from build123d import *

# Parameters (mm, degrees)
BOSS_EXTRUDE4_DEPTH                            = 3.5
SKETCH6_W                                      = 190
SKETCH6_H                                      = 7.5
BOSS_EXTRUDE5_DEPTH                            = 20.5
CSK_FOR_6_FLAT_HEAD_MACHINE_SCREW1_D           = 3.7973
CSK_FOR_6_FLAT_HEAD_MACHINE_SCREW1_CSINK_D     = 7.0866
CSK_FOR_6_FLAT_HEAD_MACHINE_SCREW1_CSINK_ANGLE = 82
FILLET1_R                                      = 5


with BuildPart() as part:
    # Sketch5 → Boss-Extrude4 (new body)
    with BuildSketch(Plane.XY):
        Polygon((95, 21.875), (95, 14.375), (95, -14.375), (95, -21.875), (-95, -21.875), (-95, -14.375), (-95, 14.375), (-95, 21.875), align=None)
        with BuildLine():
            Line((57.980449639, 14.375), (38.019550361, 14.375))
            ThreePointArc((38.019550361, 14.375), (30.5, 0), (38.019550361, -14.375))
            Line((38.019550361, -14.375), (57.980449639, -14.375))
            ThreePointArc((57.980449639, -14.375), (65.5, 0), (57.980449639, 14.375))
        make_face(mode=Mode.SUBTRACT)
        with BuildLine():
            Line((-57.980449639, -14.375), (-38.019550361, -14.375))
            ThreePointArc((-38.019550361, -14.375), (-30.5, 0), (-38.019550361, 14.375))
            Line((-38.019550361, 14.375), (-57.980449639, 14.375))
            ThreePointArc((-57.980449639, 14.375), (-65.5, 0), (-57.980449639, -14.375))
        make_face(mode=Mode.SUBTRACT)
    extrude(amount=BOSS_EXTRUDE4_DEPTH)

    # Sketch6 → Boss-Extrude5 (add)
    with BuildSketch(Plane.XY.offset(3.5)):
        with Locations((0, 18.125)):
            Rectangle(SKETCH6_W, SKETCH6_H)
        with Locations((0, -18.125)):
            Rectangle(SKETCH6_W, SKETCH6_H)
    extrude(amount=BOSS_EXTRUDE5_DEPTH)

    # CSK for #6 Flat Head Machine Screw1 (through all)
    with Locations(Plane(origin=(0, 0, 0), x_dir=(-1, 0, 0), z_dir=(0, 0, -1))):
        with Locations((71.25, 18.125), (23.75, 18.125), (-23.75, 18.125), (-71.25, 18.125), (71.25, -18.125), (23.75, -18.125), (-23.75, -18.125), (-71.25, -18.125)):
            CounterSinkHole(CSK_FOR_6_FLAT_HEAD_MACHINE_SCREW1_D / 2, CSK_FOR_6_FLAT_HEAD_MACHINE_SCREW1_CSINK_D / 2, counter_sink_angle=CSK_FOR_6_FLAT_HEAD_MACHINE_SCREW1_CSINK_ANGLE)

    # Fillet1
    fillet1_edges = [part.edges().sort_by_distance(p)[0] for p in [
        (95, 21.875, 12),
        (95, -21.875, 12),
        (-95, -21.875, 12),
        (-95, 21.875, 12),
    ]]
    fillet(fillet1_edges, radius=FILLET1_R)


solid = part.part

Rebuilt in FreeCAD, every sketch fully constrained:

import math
import FreeCAD as App
import Part
import Sketcher
from FreeCAD import Vector


def edges_at(feature, points):
    """Names of the edges that pass closest to the given points."""
    edges = feature.Shape.Edges
    near = lambda p: min(range(len(edges)), key=lambda i: edges[i].distToShape(Part.Vertex(*p))[0])
    return sorted({f"Edge{near(p) + 1}" for p in points})


def add_polygon(sketch, points):
    """Adds a closed chain of lines whose ends are joined by coincident constraints."""
    first, n = sketch.GeometryCount, len(points)
    for a, b in zip(points, points[1:] + points[:1]):
        sketch.addGeometry(Part.LineSegment(App.Vector(*a, 0), App.Vector(*b, 0)), False)
    for i in range(n):
        sketch.addConstraint(Sketcher.Constraint("Coincident", first + i, 2, first + (i + 1) % n, 1))

doc = App.newDocument("Part")
params = doc.addObject("Spreadsheet::Sheet", "Params")
for row, (alias, value) in enumerate([
    ("sketch1_radius", "17.5 mm"),
    ("sketch1_width", "190 mm"),
    ("sketch1_height", "43.75 mm"),
    ("pad1_length", "3.5 mm"),
    ("sketch2_width", "190 mm"),
    ("sketch2_height", "7.5 mm"),
    ("pad2_length", "20.5 mm"),
    ("hole_diameter", "3.7973 mm"),
    ("hole_csink_diameter", "7.0866 mm"),
    ("fillet_radius", "5 mm"),
], start=1):
    params.set(f"A{row}", alias)
    params.set(f"B{row}", "=" + value)
    params.setAlias(f"B{row}", alias)

body = doc.addObject("PartDesign::Body", "Body")

sketch1 = body.newObject("Sketcher::SketchObject", "Sketch")
sketch1.AttachmentSupport = (doc.getObject("XY_Plane"), [""])
sketch1.MapMode = "FlatFace"
add_polygon(sketch1, [(95, -22), (95, 22), (-95, 22), (-95, -22)])
sketch1.addGeometry(Part.ArcOfCircle(Part.Circle(Vector(48, 0, 0), Vector(0, 0, 1), 18), math.radians(-55), math.radians(55)), False)
sketch1.addGeometry(Part.LineSegment(Vector(58, -14, 0), Vector(38, -14, 0)), False)
sketch1.addGeometry(Part.ArcOfCircle(Part.Circle(Vector(48, 0, 0), Vector(0, 0, 1), 18), math.radians(125), math.radians(235)), False)
sketch1.addGeometry(Part.LineSegment(Vector(38, 14, 0), Vector(58, 14, 0)), False)
sketch1.addGeometry(Part.ArcOfCircle(Part.Circle(Vector(-48, 0, 0), Vector(0, 0, 1), 18), math.radians(125), math.radians(235)), False)
sketch1.addGeometry(Part.LineSegment(Vector(-58, 14, 0), Vector(-38, 14, 0)), False)
sketch1.addGeometry(Part.ArcOfCircle(Part.Circle(Vector(-48, 0, 0), Vector(0, 0, 1), 18), math.radians(-55), math.radians(55)), False)
sketch1.addGeometry(Part.LineSegment(Vector(-38, -14, 0), Vector(-58, -14, 0)), False)
sketch1.addConstraint([
    Sketcher.Constraint("Coincident", 4, 1, 5, 1),
    Sketcher.Constraint("Coincident", 5, 2, 6, 2),
    Sketcher.Constraint("Coincident", 6, 1, 7, 1),
    Sketcher.Constraint("Coincident", 7, 2, 4, 2),
    Sketcher.Constraint("Coincident", 8, 1, 9, 1),
    Sketcher.Constraint("Coincident", 9, 2, 10, 2),
    Sketcher.Constraint("Coincident", 10, 1, 11, 1),
    Sketcher.Constraint("Coincident", 11, 2, 8, 2),
    Sketcher.Constraint("Vertical", 0),
    Sketcher.Constraint("Horizontal", 1),
    Sketcher.Constraint("Vertical", 2),
    Sketcher.Constraint("Horizontal", 3),
    Sketcher.Constraint("Horizontal", 5),
    Sketcher.Constraint("Horizontal", 7),
    Sketcher.Constraint("Horizontal", 9),
    Sketcher.Constraint("Horizontal", 11),
    Sketcher.Constraint("Coincident", 6, 3, 4, 3),
    Sketcher.Constraint("Coincident", 10, 3, 8, 3),
    Sketcher.Constraint("Equal", 4, 6),
    Sketcher.Constraint("Equal", 6, 8),
    Sketcher.Constraint("Equal", 8, 10),
    Sketcher.Constraint("Symmetric", 4, 3, 8, 3, -1, 1),
    Sketcher.Constraint("Symmetric", 0, 2, 2, 2, -1, 1),
    Sketcher.Constraint("Symmetric", 7, 2, 8, 1, -2),
    Sketcher.Constraint("Horizontal", 5, 2, 10, 1),
    Sketcher.Constraint("Vertical", 5, 2, 6, 1),
    Sketcher.Constraint("Radius", 4, 17.5),
    Sketcher.Constraint("DistanceX", 1, 2, 1, 1, 190.0),
    Sketcher.Constraint("DistanceX", -1, 1, 4, 3, 48.0),
    Sketcher.Constraint("DistanceY", 0, 1, 0, 2, 43.75),
    Sketcher.Constraint("DistanceY", 3, 2, 4, 1, 7.5),
])
sketch1.setExpression("Constraints[30]", "Params.sketch1_radius")
sketch1.setExpression("Constraints[31]", "Params.sketch1_width")
sketch1.setExpression("Constraints[33]", "Params.sketch1_height")
pad1 = body.newObject("PartDesign::Pad", "Pad")
pad1.Profile = sketch1
pad1.setExpression("Length", "Params.pad1_length")

sketch2 = body.newObject("Sketcher::SketchObject", "Sketch001")
sketch2.AttachmentSupport = (doc.getObject("XY_Plane"), [""])
sketch2.MapMode = "FlatFace"
sketch2.AttachmentOffset = App.Placement(Vector(0, 0, 3.5), App.Rotation())
add_polygon(sketch2, [(-95, 22), (-95, 14), (95, 14), (95, 22)])
add_polygon(sketch2, [(-95, -14), (-95, -22), (95, -22), (95, -14)])
sketch2.addConstraint([
    Sketcher.Constraint("Vertical", 0),
    Sketcher.Constraint("Horizontal", 1),
    Sketcher.Constraint("Vertical", 2),
    Sketcher.Constraint("Horizontal", 3),
    Sketcher.Constraint("Vertical", 4),
    Sketcher.Constraint("Horizontal", 5),
    Sketcher.Constraint("Vertical", 6),
    Sketcher.Constraint("Horizontal", 7),
    Sketcher.Constraint("Symmetric", 2, 2, 4, 2, -1, 1),
    Sketcher.Constraint("Symmetric", 0, 2, 6, 2, -1, 1),
    Sketcher.Constraint("Vertical", 3, 2, 4, 2),
    Sketcher.Constraint("DistanceX", 1, 1, 1, 2, 190.0),
    Sketcher.Constraint("DistanceY", 0, 2, 0, 1, 7.5),
    Sketcher.Constraint("DistanceY", 4, 2, 0, 2, 36.25),
])
sketch2.setExpression("Constraints[19]", "Params.sketch2_width")
sketch2.setExpression("Constraints[20]", "Params.sketch2_height")
pad2 = body.newObject("PartDesign::Pad", "Pad001")
pad2.Profile = sketch2
pad2.setExpression("Length", "Params.pad2_length")

sketch3 = body.newObject("Sketcher::SketchObject", "Sketch002")
sketch3.AttachmentSupport = (doc.getObject("XY_Plane"), [""])
sketch3.MapMode = "FlatFace"
sketch3.addGeometry([
    Part.Circle(Vector(-71.2, 18.1, 0), Vector(0, 0, 1), 1.9),
    Part.Circle(Vector(-23.8, 18.1, 0), Vector(0, 0, 1), 1.9),
    Part.Circle(Vector(23.8, 18.1, 0), Vector(0, 0, 1), 1.9),
    Part.Circle(Vector(71.2, 18.1, 0), Vector(0, 0, 1), 1.9),
    Part.Circle(Vector(-71.2, -18.1, 0), Vector(0, 0, 1), 1.9),
    Part.Circle(Vector(-23.8, -18.1, 0), Vector(0, 0, 1), 1.9),
    Part.Circle(Vector(23.8, -18.1, 0), Vector(0, 0, 1), 1.9),
    Part.Circle(Vector(71.2, -18.1, 0), Vector(0, 0, 1), 1.9),
], False)
sketch3.addConstraint([
    Sketcher.Constraint("Equal", 0, 1),
    Sketcher.Constraint("Equal", 1, 2),
    Sketcher.Constraint("Equal", 2, 3),
    Sketcher.Constraint("Equal", 3, 4),
    Sketcher.Constraint("Equal", 4, 5),
    Sketcher.Constraint("Equal", 5, 6),
    Sketcher.Constraint("Equal", 6, 7),
    Sketcher.Constraint("Symmetric", 3, 3, 4, 3, -1, 1),
    Sketcher.Constraint("Symmetric", 2, 3, 5, 3, -1, 1),
    Sketcher.Constraint("Symmetric", 1, 3, 6, 3, -1, 1),
    Sketcher.Constraint("Symmetric", 0, 3, 7, 3, -1, 1),
    Sketcher.Constraint("Symmetric", 1, 3, 2, 3, -2),
    Sketcher.Constraint("Symmetric", 0, 3, 3, 3, -2),
    Sketcher.Constraint("Horizontal", 0, 3, 1, 3),
    Sketcher.Constraint("DistanceX", 0, 3, 2, 3, 95.0),
    Sketcher.Constraint("Diameter", 0, 3.7973),
    Sketcher.Constraint("DistanceX", 0, 3, 1, 3, 47.5),
    Sketcher.Constraint("DistanceY", 4, 3, 0, 3, 36.25),
])
doc.recompute()
hole = body.newObject("PartDesign::Hole", "Hole")
hole.Profile = sketch3
hole.ThreadType = "None"
hole.setExpression("Diameter", "Params.hole_diameter")
hole.DepthType = "ThroughAll"
hole.HoleCutType = "Countersink"
hole.setExpression("HoleCutDiameter", "Params.hole_csink_diameter")
hole.HoleCutCountersinkAngle = 82
hole.Reversed = True
doc.recompute()

fillet = body.newObject("PartDesign::Fillet", "Fillet")
fillet.Base = (hole, edges_at(hole, [
    (95, 21.875, 12),
    (95, -21.875, 12),
    (-95, -21.875, 12),
    (-95, 21.875, 12),
]))
fillet.setExpression("Radius", "Params.fillet_radius")

doc.recompute()
